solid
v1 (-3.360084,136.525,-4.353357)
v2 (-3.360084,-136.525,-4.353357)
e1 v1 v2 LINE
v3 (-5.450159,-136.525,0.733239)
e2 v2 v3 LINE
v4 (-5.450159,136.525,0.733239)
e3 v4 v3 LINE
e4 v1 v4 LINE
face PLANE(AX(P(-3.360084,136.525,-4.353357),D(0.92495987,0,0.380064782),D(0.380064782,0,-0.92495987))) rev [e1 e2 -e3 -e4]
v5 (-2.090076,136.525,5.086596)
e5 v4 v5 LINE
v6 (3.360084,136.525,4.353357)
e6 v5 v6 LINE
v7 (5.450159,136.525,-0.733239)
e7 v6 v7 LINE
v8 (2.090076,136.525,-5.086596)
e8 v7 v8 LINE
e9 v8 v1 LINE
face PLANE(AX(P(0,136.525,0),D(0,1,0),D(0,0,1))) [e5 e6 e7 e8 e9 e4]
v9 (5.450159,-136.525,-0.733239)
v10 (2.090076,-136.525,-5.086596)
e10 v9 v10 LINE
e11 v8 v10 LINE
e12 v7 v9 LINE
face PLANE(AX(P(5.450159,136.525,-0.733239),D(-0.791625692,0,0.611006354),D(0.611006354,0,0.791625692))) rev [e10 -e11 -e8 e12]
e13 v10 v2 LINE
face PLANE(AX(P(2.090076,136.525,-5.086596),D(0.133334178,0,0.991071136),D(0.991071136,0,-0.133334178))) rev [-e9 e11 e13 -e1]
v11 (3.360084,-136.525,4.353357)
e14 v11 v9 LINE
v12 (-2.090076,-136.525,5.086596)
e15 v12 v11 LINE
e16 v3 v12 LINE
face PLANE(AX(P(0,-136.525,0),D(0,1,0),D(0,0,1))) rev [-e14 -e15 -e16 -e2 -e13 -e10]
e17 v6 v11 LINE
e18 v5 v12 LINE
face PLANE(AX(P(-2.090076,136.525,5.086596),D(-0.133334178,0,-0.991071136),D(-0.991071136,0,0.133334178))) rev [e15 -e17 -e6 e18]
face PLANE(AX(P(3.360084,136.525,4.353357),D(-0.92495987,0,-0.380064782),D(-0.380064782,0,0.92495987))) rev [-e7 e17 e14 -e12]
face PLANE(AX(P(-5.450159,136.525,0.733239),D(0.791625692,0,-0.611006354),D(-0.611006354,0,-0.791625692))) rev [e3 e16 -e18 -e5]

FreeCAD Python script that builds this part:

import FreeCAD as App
import Part
import Sketcher
from FreeCAD import Vector
Q = App.Units.Quantity

doc = App.newDocument("Part")
body = doc.addObject("PartDesign::Body", "Body")

# Sketch on XZ plane
sketch1 = body.newObject("Sketcher::SketchObject", "Sketch")
sketch1.AttachmentSupport = (doc.getObject("XZ_Plane"), [""])
sketch1.MapMode = "FlatFace"
sketch1.addGeometry([
    Part.LineSegment(Vector(3, 4, 0), Vector(5, -1, 0)),  # 0
    Part.LineSegment(Vector(5, -1, 0), Vector(2, -5, 0)),  # 1
    Part.LineSegment(Vector(2, -5, 0), Vector(-3, -4, 0)),  # 2
    Part.LineSegment(Vector(-3, -4, 0), Vector(-5, 1, 0)),  # 3
    Part.LineSegment(Vector(-5, 1, 0), Vector(-2, 5, 0)),  # 4
    Part.LineSegment(Vector(-2, 5, 0), Vector(3, 4, 0)),  # 5
], False)
sketch1.addConstraint([
    Sketcher.Constraint("Coincident", 0, 2, 1, 1),
    Sketcher.Constraint("Coincident", 1, 2, 2, 1),
    Sketcher.Constraint("Coincident", 2, 2, 3, 1),
    Sketcher.Constraint("Coincident", 3, 2, 4, 1),
    Sketcher.Constraint("Coincident", 4, 2, 5, 1),
    Sketcher.Constraint("Coincident", 5, 2, 0, 1),
    Sketcher.Constraint("Symmetric", 0, 2, 3, 2, -1, 1),
    Sketcher.Constraint("Symmetric", 1, 2, 4, 2, -1, 1),
    Sketcher.Constraint("Symmetric", 2, 2, 5, 2, -1, 1),
    Sketcher.Constraint("Equal", 0, 1),
    Sketcher.Constraint("Equal", 1, 2),
    Sketcher.Constraint("Distance", 0, 5.499261),
    Sketcher.Constraint("DistanceX", -1, 1, 0, 2, 5.450159),
    Sketcher.Constraint("DistanceY", 0, 2, -1, 1, 0.733239),
    Sketcher.Constraint("DistanceX", 2, 2, 1, 2, 5.450159),
])
pad1 = body.newObject("PartDesign::Pad", "Pad")
pad1.Profile = sketch1
pad1.Length = Q("10.75 in")
pad1.Midplane = True

doc.recompute()
